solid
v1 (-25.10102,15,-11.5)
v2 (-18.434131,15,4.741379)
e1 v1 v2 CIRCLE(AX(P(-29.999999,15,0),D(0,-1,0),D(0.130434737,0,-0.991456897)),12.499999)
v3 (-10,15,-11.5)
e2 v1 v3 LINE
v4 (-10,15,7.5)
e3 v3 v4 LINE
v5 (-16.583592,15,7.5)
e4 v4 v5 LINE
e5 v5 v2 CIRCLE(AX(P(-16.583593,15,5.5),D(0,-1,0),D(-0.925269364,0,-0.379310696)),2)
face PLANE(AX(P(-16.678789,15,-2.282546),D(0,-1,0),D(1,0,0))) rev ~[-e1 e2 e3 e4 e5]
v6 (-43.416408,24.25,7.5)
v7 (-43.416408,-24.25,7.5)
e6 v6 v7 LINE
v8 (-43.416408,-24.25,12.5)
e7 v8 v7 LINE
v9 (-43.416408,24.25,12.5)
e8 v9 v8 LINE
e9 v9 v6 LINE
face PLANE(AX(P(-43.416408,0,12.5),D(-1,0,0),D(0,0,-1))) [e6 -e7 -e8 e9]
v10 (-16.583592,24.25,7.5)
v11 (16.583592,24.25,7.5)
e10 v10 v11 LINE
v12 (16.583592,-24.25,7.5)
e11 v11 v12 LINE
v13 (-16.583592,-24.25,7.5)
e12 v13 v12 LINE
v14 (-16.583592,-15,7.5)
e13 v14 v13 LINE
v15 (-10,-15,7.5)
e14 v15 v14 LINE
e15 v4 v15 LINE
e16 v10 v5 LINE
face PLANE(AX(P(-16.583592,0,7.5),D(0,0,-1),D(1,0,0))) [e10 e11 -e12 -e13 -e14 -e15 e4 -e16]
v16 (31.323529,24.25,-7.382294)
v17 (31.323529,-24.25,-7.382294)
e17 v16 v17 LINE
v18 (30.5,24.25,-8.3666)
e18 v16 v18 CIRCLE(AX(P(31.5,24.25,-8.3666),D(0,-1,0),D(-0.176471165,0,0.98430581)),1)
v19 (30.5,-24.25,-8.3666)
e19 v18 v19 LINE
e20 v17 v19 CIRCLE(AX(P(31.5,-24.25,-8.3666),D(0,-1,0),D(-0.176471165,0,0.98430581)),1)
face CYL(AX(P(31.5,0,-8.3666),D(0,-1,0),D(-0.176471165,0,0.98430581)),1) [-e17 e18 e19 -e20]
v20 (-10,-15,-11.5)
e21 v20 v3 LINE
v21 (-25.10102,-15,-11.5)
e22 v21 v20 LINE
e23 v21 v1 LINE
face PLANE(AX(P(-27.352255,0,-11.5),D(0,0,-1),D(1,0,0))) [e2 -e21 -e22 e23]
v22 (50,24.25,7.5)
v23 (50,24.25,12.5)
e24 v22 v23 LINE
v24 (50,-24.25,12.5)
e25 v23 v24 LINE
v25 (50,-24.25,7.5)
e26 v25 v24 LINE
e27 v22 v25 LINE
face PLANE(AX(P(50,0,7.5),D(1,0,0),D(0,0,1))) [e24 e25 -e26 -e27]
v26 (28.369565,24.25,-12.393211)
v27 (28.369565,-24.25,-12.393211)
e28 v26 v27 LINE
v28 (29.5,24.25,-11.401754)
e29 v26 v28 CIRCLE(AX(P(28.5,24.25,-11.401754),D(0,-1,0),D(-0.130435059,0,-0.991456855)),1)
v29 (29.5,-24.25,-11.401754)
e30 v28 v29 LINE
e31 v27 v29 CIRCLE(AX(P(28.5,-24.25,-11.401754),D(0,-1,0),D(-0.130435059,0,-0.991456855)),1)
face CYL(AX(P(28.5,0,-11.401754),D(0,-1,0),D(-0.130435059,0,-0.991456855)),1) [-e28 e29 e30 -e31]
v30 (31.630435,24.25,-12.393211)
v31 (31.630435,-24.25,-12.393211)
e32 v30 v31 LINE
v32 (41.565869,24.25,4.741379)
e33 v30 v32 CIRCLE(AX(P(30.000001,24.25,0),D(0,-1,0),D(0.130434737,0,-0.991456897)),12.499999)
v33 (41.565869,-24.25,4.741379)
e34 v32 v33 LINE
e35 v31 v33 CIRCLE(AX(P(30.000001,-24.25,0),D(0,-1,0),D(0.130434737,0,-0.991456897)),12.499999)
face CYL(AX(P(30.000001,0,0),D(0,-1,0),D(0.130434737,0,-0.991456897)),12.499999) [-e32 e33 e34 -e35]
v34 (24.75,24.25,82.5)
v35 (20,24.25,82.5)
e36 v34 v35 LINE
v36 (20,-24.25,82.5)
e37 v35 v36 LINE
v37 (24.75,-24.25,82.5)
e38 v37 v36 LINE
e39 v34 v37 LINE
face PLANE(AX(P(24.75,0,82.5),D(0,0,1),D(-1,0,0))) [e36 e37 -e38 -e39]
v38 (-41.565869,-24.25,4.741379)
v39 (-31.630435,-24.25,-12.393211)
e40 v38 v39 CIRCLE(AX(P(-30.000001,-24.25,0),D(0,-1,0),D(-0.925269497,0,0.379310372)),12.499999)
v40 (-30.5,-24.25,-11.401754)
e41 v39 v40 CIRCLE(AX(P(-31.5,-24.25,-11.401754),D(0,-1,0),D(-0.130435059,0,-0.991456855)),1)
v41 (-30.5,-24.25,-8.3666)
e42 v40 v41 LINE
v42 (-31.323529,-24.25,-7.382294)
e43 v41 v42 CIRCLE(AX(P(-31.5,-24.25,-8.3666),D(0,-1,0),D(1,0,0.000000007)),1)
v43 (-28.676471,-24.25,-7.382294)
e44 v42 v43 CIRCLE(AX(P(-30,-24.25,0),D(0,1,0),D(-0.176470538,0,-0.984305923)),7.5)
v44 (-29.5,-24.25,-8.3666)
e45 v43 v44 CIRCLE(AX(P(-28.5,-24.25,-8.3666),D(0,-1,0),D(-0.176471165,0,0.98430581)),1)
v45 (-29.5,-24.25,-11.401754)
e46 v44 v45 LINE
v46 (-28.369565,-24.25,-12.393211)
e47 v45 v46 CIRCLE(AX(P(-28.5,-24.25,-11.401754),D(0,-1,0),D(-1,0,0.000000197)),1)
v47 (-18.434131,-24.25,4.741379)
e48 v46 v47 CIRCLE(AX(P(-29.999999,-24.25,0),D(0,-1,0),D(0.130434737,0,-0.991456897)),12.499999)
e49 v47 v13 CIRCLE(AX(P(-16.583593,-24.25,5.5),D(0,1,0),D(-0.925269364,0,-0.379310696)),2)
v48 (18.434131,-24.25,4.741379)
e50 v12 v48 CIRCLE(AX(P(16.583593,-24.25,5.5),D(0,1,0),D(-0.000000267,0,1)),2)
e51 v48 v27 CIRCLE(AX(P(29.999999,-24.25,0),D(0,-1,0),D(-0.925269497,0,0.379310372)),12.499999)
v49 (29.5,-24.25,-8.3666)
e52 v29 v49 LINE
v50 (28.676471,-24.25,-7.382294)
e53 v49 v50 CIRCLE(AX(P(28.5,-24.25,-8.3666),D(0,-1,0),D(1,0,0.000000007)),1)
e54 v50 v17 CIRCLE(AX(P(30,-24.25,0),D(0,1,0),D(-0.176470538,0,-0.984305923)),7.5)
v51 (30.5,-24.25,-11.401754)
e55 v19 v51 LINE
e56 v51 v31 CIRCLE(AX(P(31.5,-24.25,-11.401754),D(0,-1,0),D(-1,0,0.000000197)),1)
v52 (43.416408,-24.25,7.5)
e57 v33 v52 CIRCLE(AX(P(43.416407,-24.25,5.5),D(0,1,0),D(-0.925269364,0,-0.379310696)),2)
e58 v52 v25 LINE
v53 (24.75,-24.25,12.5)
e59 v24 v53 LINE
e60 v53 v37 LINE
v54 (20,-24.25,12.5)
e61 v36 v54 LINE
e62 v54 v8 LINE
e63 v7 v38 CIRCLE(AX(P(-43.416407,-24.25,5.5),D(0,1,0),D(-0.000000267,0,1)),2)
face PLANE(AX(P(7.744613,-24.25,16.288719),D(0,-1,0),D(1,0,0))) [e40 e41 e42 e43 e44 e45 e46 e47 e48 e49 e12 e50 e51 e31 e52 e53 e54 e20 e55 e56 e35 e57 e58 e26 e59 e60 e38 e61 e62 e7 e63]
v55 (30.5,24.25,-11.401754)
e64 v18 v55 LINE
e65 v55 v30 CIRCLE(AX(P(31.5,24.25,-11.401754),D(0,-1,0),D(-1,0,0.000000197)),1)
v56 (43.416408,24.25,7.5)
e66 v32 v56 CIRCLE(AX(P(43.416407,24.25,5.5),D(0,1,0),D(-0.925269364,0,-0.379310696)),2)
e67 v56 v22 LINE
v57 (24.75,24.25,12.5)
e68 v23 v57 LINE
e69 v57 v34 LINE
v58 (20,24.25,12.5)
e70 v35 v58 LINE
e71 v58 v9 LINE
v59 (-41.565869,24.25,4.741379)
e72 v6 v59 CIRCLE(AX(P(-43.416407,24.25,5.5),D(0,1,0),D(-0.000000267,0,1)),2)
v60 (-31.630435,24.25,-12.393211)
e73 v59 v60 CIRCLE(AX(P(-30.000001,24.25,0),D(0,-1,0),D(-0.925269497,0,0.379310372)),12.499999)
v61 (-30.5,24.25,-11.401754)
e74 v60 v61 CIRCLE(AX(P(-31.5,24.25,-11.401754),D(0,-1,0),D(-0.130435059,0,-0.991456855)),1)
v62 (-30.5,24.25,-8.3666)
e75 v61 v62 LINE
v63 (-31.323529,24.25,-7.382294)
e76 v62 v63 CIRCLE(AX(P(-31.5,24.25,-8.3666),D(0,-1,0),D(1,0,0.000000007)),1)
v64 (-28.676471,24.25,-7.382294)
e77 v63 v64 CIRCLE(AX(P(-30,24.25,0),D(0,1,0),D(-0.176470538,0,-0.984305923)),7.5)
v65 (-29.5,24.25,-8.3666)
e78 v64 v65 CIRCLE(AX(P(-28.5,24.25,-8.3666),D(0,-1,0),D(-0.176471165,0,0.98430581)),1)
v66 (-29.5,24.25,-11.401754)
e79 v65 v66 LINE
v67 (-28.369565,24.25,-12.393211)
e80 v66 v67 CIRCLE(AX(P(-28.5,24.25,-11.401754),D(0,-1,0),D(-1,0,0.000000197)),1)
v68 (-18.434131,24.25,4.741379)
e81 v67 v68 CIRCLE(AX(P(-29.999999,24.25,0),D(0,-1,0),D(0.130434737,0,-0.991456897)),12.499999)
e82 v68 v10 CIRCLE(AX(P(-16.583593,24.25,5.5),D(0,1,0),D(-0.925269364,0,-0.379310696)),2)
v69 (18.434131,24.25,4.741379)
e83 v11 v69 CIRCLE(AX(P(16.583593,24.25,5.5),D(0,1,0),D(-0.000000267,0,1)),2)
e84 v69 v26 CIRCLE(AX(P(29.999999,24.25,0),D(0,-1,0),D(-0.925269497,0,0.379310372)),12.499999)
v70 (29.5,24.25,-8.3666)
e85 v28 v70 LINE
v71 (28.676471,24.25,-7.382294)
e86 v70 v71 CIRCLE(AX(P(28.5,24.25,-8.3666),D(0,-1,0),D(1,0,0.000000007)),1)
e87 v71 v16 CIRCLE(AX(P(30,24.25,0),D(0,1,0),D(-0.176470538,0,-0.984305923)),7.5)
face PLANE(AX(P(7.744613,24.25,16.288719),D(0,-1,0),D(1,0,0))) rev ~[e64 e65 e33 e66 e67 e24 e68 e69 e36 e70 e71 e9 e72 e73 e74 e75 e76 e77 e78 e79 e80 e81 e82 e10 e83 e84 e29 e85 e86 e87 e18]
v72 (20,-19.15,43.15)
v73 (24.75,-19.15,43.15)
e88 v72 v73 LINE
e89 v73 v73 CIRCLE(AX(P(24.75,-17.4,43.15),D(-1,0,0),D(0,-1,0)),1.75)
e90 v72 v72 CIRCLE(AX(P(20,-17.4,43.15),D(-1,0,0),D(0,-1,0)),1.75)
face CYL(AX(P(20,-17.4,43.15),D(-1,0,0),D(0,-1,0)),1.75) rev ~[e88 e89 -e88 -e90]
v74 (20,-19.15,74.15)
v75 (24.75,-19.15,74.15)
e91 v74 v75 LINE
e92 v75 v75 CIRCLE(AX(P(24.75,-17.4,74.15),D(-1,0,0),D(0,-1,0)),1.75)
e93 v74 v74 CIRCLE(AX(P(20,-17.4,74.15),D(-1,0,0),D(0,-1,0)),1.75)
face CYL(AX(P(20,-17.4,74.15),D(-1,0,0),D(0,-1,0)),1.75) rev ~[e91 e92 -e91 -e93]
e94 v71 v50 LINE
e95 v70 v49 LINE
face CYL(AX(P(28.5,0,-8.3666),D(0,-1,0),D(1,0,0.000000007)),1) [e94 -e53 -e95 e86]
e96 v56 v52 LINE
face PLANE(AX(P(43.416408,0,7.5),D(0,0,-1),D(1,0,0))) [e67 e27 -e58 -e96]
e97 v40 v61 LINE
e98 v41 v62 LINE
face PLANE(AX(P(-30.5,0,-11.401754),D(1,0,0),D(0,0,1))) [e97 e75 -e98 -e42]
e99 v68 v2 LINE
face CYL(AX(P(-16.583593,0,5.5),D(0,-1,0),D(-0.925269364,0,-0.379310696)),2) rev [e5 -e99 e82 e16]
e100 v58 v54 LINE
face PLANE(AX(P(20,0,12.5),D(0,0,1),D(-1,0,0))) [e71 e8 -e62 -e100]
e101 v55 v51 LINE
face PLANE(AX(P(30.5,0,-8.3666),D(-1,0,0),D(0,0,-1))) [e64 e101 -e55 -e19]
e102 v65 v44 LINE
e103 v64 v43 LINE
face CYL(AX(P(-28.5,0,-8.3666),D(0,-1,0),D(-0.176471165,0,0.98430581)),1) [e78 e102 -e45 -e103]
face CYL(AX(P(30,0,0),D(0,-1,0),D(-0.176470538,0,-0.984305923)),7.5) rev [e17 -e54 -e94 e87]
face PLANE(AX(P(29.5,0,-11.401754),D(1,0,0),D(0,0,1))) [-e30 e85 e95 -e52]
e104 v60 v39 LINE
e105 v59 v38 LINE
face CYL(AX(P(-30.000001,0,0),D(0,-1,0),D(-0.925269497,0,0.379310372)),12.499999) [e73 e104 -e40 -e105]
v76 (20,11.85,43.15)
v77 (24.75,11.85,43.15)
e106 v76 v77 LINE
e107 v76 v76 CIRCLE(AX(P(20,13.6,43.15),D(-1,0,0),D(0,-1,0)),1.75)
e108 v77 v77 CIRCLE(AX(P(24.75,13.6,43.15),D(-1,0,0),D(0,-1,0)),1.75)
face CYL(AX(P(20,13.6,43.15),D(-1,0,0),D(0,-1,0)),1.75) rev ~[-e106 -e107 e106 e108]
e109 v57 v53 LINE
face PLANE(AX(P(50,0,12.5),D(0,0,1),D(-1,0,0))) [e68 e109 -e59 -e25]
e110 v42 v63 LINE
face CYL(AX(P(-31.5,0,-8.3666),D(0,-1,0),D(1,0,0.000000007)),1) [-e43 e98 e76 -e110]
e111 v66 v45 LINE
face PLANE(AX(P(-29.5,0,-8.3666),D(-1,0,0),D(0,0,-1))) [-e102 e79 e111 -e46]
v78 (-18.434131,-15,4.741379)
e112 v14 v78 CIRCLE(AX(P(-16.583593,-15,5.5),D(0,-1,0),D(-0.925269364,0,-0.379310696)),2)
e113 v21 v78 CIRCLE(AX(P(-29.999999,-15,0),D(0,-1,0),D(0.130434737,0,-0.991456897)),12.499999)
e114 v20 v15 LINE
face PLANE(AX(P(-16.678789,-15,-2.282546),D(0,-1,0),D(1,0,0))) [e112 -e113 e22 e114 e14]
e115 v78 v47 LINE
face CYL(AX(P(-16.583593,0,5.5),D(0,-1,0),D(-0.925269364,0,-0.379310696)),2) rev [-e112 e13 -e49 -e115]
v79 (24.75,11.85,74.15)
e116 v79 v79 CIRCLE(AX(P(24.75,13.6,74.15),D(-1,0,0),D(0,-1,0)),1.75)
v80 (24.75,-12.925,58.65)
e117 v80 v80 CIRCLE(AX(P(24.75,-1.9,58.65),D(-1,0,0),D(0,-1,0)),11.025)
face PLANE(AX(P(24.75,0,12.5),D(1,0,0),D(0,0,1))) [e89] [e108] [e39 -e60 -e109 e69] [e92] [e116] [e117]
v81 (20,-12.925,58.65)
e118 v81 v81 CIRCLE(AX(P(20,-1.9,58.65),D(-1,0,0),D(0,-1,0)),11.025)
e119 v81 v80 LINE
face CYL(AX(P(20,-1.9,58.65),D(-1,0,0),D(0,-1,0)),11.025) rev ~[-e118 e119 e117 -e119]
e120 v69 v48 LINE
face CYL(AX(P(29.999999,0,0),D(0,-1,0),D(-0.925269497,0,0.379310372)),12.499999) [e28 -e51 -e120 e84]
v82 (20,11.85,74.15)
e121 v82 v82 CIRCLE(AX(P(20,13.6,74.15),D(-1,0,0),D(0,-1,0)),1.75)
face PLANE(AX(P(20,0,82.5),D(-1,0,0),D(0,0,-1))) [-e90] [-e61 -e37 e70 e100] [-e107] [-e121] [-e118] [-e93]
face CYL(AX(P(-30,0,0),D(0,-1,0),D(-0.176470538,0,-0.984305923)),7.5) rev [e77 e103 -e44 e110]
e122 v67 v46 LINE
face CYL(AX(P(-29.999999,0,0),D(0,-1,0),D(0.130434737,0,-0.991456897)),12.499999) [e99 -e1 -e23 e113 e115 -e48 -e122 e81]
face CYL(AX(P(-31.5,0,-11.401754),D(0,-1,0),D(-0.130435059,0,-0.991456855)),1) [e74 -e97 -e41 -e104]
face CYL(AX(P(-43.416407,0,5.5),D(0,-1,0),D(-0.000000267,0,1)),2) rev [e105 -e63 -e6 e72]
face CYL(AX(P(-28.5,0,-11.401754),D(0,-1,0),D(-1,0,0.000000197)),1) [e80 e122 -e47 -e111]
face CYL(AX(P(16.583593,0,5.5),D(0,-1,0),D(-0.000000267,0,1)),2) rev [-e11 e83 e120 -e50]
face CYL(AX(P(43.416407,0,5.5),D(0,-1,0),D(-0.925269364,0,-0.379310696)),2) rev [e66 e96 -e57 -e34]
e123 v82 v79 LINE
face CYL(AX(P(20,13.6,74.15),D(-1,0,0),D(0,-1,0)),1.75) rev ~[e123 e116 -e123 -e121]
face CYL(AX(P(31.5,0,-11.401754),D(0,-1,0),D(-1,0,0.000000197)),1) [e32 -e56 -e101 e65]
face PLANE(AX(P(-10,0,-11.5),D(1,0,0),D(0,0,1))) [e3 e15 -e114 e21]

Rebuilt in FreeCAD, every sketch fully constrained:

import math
import FreeCAD as App
import Part
import Sketcher
from FreeCAD import Vector
Q = App.Units.Quantity


def add_polygon(sketch, points):
    """Adds a closed chain of lines whose ends are joined by coincident constraints."""
    first, n = sketch.GeometryCount, len(points)
    for a, b in zip(points, points[1:] + points[:1]):
        sketch.addGeometry(Part.LineSegment(App.Vector(*a, 0), App.Vector(*b, 0)), False)
    for i in range(n):
        sketch.addConstraint(Sketcher.Constraint("Coincident", first + i, 2, first + (i + 1) % n, 1))

doc = App.newDocument("Part")
body = doc.addObject("PartDesign::Body", "Body")

# Sketch on XZ plane
sketch1 = doc.addObject("Sketcher::SketchObject", "Sketch")
body.addObject(sketch1)
sketch1.AttachmentSupport = (doc.XZ_Plane, [""])
sketch1.MapMode = "FlatFace"
sketch1.addGeometry([
    Part.ArcOfCircle(Part.Circle(Vector(-30, 0, 0), Vector(0, 0, 1), 7.5), math.radians(-79.835754), math.radians(259.835754)),  # 0
    Part.ArcOfCircle(Part.Circle(Vector(-28.5, -8.3666, 0), Vector(0, 0, 1), 1), math.radians(100.164282), math.radians(180)),  # 1
    Part.LineSegment(Vector(-29.5, -8.3666, 0), Vector(-29.5, -11.401754, 0)),  # 2
    Part.ArcOfCircle(Part.Circle(Vector(-28.5, -11.401754, 0), Vector(0, 0, 1), 1), math.radians(179.999989), math.radians(277.494733)),  # 3
    Part.ArcOfCircle(Part.Circle(Vector(-29.999999, 0, 0), Vector(0, 0, 1), 12.499999), math.radians(-82.505285), math.radians(22.290972)),  # 4
    Part.ArcOfCircle(Part.Circle(Vector(-16.583593, 5.5, 0), Vector(0, 0, 1), 2), math.radians(89.999985), math.radians(202.290992)),  # 5
    Part.LineSegment(Vector(-16.583592, 7.5, 0), Vector(16.583592, 7.5, 0)),  # 6
    Part.ArcOfCircle(Part.Circle(Vector(16.583593, 5.5, 0), Vector(0, 0, 1), 2), math.radians(-22.290992), math.radians(90.000015)),  # 7
    Part.ArcOfCircle(Part.Circle(Vector(29.999999, 0, 0), Vector(0, 0, 1), 12.499999), math.radians(157.709028), math.radians(262.505285)),  # 8
    Part.ArcOfCircle(Part.Circle(Vector(28.5, -11.401754, 0), Vector(0, 0, 1), 1), math.radians(-97.494733), math.radians(0.000011)),  # 9
    Part.LineSegment(Vector(29.5, -11.401754, 0), Vector(29.5, -8.3666, 0)),  # 10
    Part.ArcOfCircle(Part.Circle(Vector(28.5, -8.3666, 0), Vector(0, 0, 1), 1), math.radians(0), math.radians(79.835718)),  # 11
    Part.ArcOfCircle(Part.Circle(Vector(30, 0, 0), Vector(0, 0, 1), 7.5), math.radians(-79.835754), math.radians(259.835754)),  # 12
    Part.ArcOfCircle(Part.Circle(Vector(31.5, -8.3666, 0), Vector(0, 0, 1), 1), math.radians(100.164282), math.radians(180)),  # 13
    Part.LineSegment(Vector(30.5, -8.3666, 0), Vector(30.5, -11.401754, 0)),  # 14
    Part.ArcOfCircle(Part.Circle(Vector(31.5, -11.401754, 0), Vector(0, 0, 1), 1), math.radians(179.999989), math.radians(277.494733)),  # 15
    Part.ArcOfCircle(Part.Circle(Vector(30.000001, 0, 0), Vector(0, 0, 1), 12.499999), math.radians(-82.505285), math.radians(22.290972)),  # 16
    Part.ArcOfCircle(Part.Circle(Vector(43.416407, 5.5, 0), Vector(0, 0, 1), 2), math.radians(89.999985), math.radians(202.290992)),  # 17
    Part.LineSegment(Vector(43.416408, 7.5, 0), Vector(50, 7.5, 0)),  # 18
    Part.LineSegment(Vector(50, 7.5, 0), Vector(50, 12.5, 0)),  # 19
    Part.LineSegment(Vector(50, 12.5, 0), Vector(24.75, 12.5, 0)),  # 20
    Part.LineSegment(Vector(24.75, 12.5, 0), Vector(24.75, 82.5, 0)),  # 21
    Part.LineSegment(Vector(24.75, 82.5, 0), Vector(20, 82.5, 0)),  # 22
    Part.LineSegment(Vector(20, 82.5, 0), Vector(20, 12.5, 0)),  # 23
    Part.LineSegment(Vector(20, 12.5, 0), Vector(-43.416408, 12.5, 0)),  # 24
    Part.LineSegment(Vector(-43.416408, 12.5, 0), Vector(-43.416408, 7.5, 0)),  # 25
    Part.ArcOfCircle(Part.Circle(Vector(-43.416407, 5.5, 0), Vector(0, 0, 1), 2), math.radians(-22.290992), math.radians(90.000015)),  # 26
    Part.ArcOfCircle(Part.Circle(Vector(-30.000001, 0, 0), Vector(0, 0, 1), 12.499999), math.radians(157.709028), math.radians(262.505285)),  # 27
    Part.ArcOfCircle(Part.Circle(Vector(-31.5, -11.401754, 0), Vector(0, 0, 1), 1), math.radians(-97.494733), math.radians(0.000011)),  # 28
    Part.LineSegment(Vector(-30.5, -11.401754, 0), Vector(-30.5, -8.3666, 0)),  # 29
    Part.ArcOfCircle(Part.Circle(Vector(-31.5, -8.3666, 0), Vector(0, 0, 1), 1), math.radians(0), math.radians(79.835718)),  # 30
], False)
sketch1.addConstraint([
    Sketcher.Constraint("Tangent", 0, 1, 1, 1),
    Sketcher.Constraint("Tangent", 1, 2, 2, 1),
    Sketcher.Constraint("Tangent", 2, 2, 3, 1),
    Sketcher.Constraint("Tangent", 3, 2, 4, 1),
    Sketcher.Constraint("Tangent", 4, 2, 5, 2),
    Sketcher.Constraint("Tangent", 5, 1, 6, 1),
    Sketcher.Constraint("Tangent", 6, 2, 7, 2),
    Sketcher.Constraint("Tangent", 7, 1, 8, 1),
    Sketcher.Constraint("Tangent", 8, 2, 9, 1),
    Sketcher.Constraint("Tangent", 9, 2, 10, 1),
    Sketcher.Constraint("Tangent", 10, 2, 11, 1),
    Sketcher.Constraint("Tangent", 11, 2, 12, 2),
    Sketcher.Constraint("Tangent", 12, 1, 13, 1),
    Sketcher.Constraint("Tangent", 13, 2, 14, 1),
    Sketcher.Constraint("Tangent", 14, 2, 15, 1),
    Sketcher.Constraint("Tangent", 15, 2, 16, 1),
    Sketcher.Constraint("Tangent", 16, 2, 17, 2),
    Sketcher.Constraint("Tangent", 17, 1, 18, 1),
    Sketcher.Constraint("Coincident", 18, 2, 19, 1),
    Sketcher.Constraint("Coincident", 19, 2, 20, 1),
    Sketcher.Constraint("Coincident", 20, 2, 21, 1),
    Sketcher.Constraint("Coincident", 21, 2, 22, 1),
    Sketcher.Constraint("Coincident", 22, 2, 23, 1),
    Sketcher.Constraint("Coincident", 23, 2, 24, 1),
    Sketcher.Constraint("Coincident", 24, 2, 25, 1),
    Sketcher.Constraint("Coincident", 25, 2, 26, 2),
    Sketcher.Constraint("Tangent", 26, 1, 27, 1),
    Sketcher.Constraint("Tangent", 27, 2, 28, 1),
    Sketcher.Constraint("Tangent", 28, 2, 29, 1),
    Sketcher.Constraint("Tangent", 29, 2, 30, 1),
    Sketcher.Constraint("Tangent", 30, 2, 0, 2),
    Sketcher.Constraint("Vertical", 2),
    Sketcher.Constraint("Horizontal", 6),
    Sketcher.Constraint("Vertical", 10),
    Sketcher.Constraint("Vertical", 14),
    Sketcher.Constraint("Horizontal", 18),
    Sketcher.Constraint("Vertical", 19),
    Sketcher.Constraint("Horizontal", 20),
    Sketcher.Constraint("Vertical", 21),
    Sketcher.Constraint("Horizontal", 22),
    Sketcher.Constraint("Vertical", 23),
    Sketcher.Constraint("Horizontal", 24),
    Sketcher.Constraint("Vertical", 25),
    Sketcher.Constraint("Vertical", 29),
    Sketcher.Constraint("Coincident", 4, 3, 0, 3),
    Sketcher.Constraint("Coincident", 12, 3, 8, 3),
    Sketcher.Constraint("Coincident", 16, 3, 8, 3),
    Sketcher.Constraint("Coincident", 27, 3, 0, 3),
    Sketcher.Constraint("Equal", 1, 3),
    Sketcher.Constraint("Equal", 5, 7),
    Sketcher.Constraint("Equal", 4, 8),
    Sketcher.Constraint("Equal", 3, 9),
    Sketcher.Constraint("Equal", 9, 11),
    Sketcher.Constraint("Equal", 0, 12),
    Sketcher.Constraint("Equal", 11, 13),
    Sketcher.Constraint("Equal", 13, 15),
    Sketcher.Constraint("Equal", 8, 16),
    Sketcher.Constraint("Equal", 7, 17),
    Sketcher.Constraint("Equal", 17, 26),
    Sketcher.Constraint("Equal", 16, 27),
    Sketcher.Constraint("Equal", 15, 28),
    Sketcher.Constraint("Equal", 28, 30),
    Sketcher.Constraint("Symmetric", 0, 3, 8, 3, -1, 1),
    Sketcher.Constraint("Symmetric", 3, 3, 9, 3, -2),
    Sketcher.Constraint("Symmetric", 17, 1, 25, 2, -2),
    Sketcher.Constraint("Horizontal", 11, 3, 13, 3),
    Sketcher.Constraint("Horizontal", 7, 3, 17, 3),
    Sketcher.Constraint("Horizontal", 15, 3, 28, 3),
    Sketcher.Constraint("Horizontal", 20, 2, 23, 2),
    Sketcher.Constraint("Radius", 1, Q("1 mm")),
    Sketcher.Constraint("Radius", 5, Q("2 mm")),
    Sketcher.Constraint("Radius", 0, Q("7.5 mm")),
    Sketcher.Constraint("Radius", 4, Q("12.499999 mm")),
    Sketcher.Constraint("DistanceY", 19, 1, 19, 2, Q("5 mm")),
    Sketcher.Constraint("DistanceY", 21, 1, 21, 2, Q("70 mm")),
    Sketcher.Constraint("DistanceX", 0, 3, -1, 1, Q("30 mm")),
    Sketcher.Constraint("DistanceX", -1, 1, 18, 2, Q("50 mm")),
    Sketcher.Constraint("DistanceX", -1, 1, 22, 2, Q("20 mm")),
    Sketcher.Constraint("DistanceX", 3, 3, 9, 3, Q("57 mm")),
    Sketcher.Constraint("DistanceX", 20, 2, 20, 1, Q("25.25 mm")),
    Sketcher.Constraint("DistanceY", -1, 1, 5, 3, Q("5.5 mm")),
])
pad1 = doc.addObject("PartDesign::Pad", "Pad")
body.addObject(pad1)
pad1.Profile = sketch1
pad1.Type = "TwoLengths"
pad1.Length = 24.25
pad1.Length2 = 24.25

# Sketch on YZ plane
sketch2 = doc.addObject("Sketcher::SketchObject", "Sketch001")
body.addObject(sketch2)
sketch2.AttachmentSupport = (doc.YZ_Plane, [""])
sketch2.MapMode = "FlatFace"
sketch2.AttachmentOffset = App.Placement(Vector(0, 0, 20), App.Rotation())
sketch2.addGeometry([
    Part.Circle(Vector(-1.9, 58.65, 0), Vector(0, 0, 1), 11.025),  # 0
    Part.Circle(Vector(13.6, 43.15, 0), Vector(0, 0, 1), 1.75),  # 1
    Part.Circle(Vector(-17.4, 43.15, 0), Vector(0, 0, 1), 1.75),  # 2
    Part.Circle(Vector(-17.4, 74.15, 0), Vector(0, 0, 1), 1.75),  # 3
    Part.Circle(Vector(13.6, 74.15, 0), Vector(0, 0, 1), 1.75),  # 4
], False)
sketch2.addConstraint([
    Sketcher.Constraint("Equal", 1, 2),
    Sketcher.Constraint("Equal", 2, 3),
    Sketcher.Constraint("Equal", 3, 4),
    Sketcher.Constraint("Horizontal", 1, 3, 2, 3),
    Sketcher.Constraint("Horizontal", 3, 3, 4, 3),
    Sketcher.Constraint("Vertical", 2, 3, 3, 3),
    Sketcher.Constraint("Vertical", 1, 3, 4, 3),
    Sketcher.Constraint("Diameter", 1, Q("3.5 mm")),
    Sketcher.Constraint("Diameter", 0, Q("22.05 mm")),
    Sketcher.Constraint("DistanceX", 2, 3, 1, 3, Q("31 mm")),
    Sketcher.Constraint("DistanceY", 2, 3, 3, 3, Q("31 mm")),
    Sketcher.Constraint("DistanceX", 0, 3, -1, 1, Q("1.9 mm")),
    Sketcher.Constraint("DistanceX", -1, 1, 1, 3, Q("13.6 mm")),
    Sketcher.Constraint("DistanceY", 1, 3, 0, 3, Q("15.5 mm")),
    Sketcher.Constraint("DistanceY", -1, 1, 0, 3, Q("58.65 mm")),
])
pocket1 = doc.addObject("PartDesign::Pocket", "Pocket")
body.addObject(pocket1)
pocket1.Profile = sketch2
pocket1.Type = "ThroughAll"
pocket1.Reversed = True

# Sketch on XZ plane
sketch3 = doc.addObject("Sketcher::SketchObject", "Sketch002")
body.addObject(sketch3)
sketch3.AttachmentSupport = (doc.XZ_Plane, [""])
sketch3.MapMode = "FlatFace"
add_polygon(sketch3, [(-10, -11.5), (-10, 9.493519), (-19.701663, 9.493519), (-19.701663, 0), (-27.352255, -11.5)])  # lines 0-4
sketch3.addConstraint([
    Sketcher.Constraint("Vertical", 0),
    Sketcher.Constraint("Horizontal", 1),
    Sketcher.Constraint("Vertical", 2),
    Sketcher.Constraint("Horizontal", 4),
    Sketcher.Constraint("PointOnObject", 2, 2, -1),
    Sketcher.Constraint("DistanceX", 0, 2, -1, 1, Q("10 mm")),
    Sketcher.Constraint("DistanceY", 3, 2, -1, 1, Q("11.5 mm")),
    Sketcher.Constraint("DistanceY", 0, 1, 0, 2, Q("20.993519 mm")),
    Sketcher.Constraint("Distance", 3, Q("13.81237 mm")),
    Sketcher.Constraint("DistanceX", 1, 2, 1, 1, Q("9.701663 mm")),
])
pad2 = doc.addObject("PartDesign::Pad", "Pad001")
body.addObject(pad2)
pad2.Profile = sketch3
pad2.Type = "TwoLengths"
pad2.Length = 15
pad2.Length2 = 15

doc.recompute()
